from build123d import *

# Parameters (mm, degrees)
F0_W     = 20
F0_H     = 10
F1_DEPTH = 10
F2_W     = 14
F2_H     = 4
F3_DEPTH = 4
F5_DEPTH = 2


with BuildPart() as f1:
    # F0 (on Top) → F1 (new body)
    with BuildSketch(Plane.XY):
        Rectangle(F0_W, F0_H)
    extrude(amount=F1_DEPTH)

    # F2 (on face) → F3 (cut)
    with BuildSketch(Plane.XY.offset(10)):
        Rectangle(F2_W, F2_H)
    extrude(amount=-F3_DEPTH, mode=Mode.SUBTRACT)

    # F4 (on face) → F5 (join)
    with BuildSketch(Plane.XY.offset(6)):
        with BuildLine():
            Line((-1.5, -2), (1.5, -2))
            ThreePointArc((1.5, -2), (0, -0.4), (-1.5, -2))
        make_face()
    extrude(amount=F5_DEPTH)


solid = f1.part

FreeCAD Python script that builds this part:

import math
import FreeCAD as App
import Part
import Sketcher

doc = App.newDocument("Part")
params = doc.addObject("Spreadsheet::Sheet", "Params")
for row, (alias, value) in enumerate([
    ("sketch1_width", "20 mm"),
    ("sketch1_height", "10 mm"),
    ("pad1_length", "10 mm"),
    ("sketch2_width", "14 mm"),
    ("sketch2_height", "4 mm"),
    ("pocket1_length", "4 mm"),
    ("sketch3_width", "3 mm"),
    ("pad2_length", "2 mm"),
], start=1):
    params.set(f"A{row}", alias)
    params.set(f"B{row}", "=" + value)
    params.setAlias(f"B{row}", alias)

body = doc.addObject("PartDesign::Body", "Body")

# Sketch on XY plane
sketch1 = doc.addObject("Sketcher::SketchObject", "Sketch")
body.addObject(sketch1)
sketch1.AttachmentSupport = (doc.XY_Plane, [""])
sketch1.MapMode = "FlatFace"
sketch1.addGeometry(Part.LineSegment(App.Vector(-10, 5, 0), App.Vector(-10, -5, 0)), False)
sketch1.addGeometry(Part.LineSegment(App.Vector(-10, -5, 0), App.Vector(10, -5, 0)), False)
sketch1.addGeometry(Part.LineSegment(App.Vector(10, -5, 0), App.Vector(10, 5, 0)), False)
sketch1.addGeometry(Part.LineSegment(App.Vector(10, 5, 0), App.Vector(-10, 5, 0)), False)
sketch1.addConstraint(Sketcher.Constraint("Coincident", 0, 2, 1, 1))
sketch1.addConstraint(Sketcher.Constraint("Coincident", 1, 2, 2, 1))
sketch1.addConstraint(Sketcher.Constraint("Coincident", 2, 2, 3, 1))
sketch1.addConstraint(Sketcher.Constraint("Coincident", 3, 2, 0, 1))
sketch1.addConstraint(Sketcher.Constraint("Vertical", 0))
sketch1.addConstraint(Sketcher.Constraint("Horizontal", 1))
sketch1.addConstraint(Sketcher.Constraint("Vertical", 2))
sketch1.addConstraint(Sketcher.Constraint("Horizontal", 3))
sketch1.addConstraint(Sketcher.Constraint("Symmetric", 0, 2, 2, 2, -1, 1))
sketch1.addConstraint(Sketcher.Constraint("DistanceX", 1, 1, 1, 2, 20.0))
sketch1.addConstraint(Sketcher.Constraint("DistanceY", 0, 2, 0, 1, 10.0))
sketch1.setExpression("Constraints[9]", "Params.sketch1_width")
sketch1.setExpression("Constraints[10]", "Params.sketch1_height")
pad1 = doc.addObject("PartDesign::Pad", "Pad")
body.addObject(pad1)
pad1.Profile = sketch1
pad1.setExpression("Length", "Params.pad1_length")

# Sketch on XY plane
sketch2 = doc.addObject("Sketcher::SketchObject", "Sketch001")
body.addObject(sketch2)
sketch2.AttachmentSupport = (doc.XY_Plane, [""])
sketch2.MapMode = "FlatFace"
sketch2.AttachmentOffset = App.Placement(App.Vector(0, 0, 10), App.Rotation())
sketch2.addGeometry(Part.LineSegment(App.Vector(-7, 2, 0), App.Vector(-7, -2, 0)), False)
sketch2.addGeometry(Part.LineSegment(App.Vector(-7, -2, 0), App.Vector(7, -2, 0)), False)
sketch2.addGeometry(Part.LineSegment(App.Vector(7, -2, 0), App.Vector(7, 2, 0)), False)
sketch2.addGeometry(Part.LineSegment(App.Vector(7, 2, 0), App.Vector(-7, 2, 0)), False)
sketch2.addConstraint(Sketcher.Constraint("Coincident", 0, 2, 1, 1))
sketch2.addConstraint(Sketcher.Constraint("Coincident", 1, 2, 2, 1))
sketch2.addConstraint(Sketcher.Constraint("Coincident", 2, 2, 3, 1))
sketch2.addConstraint(Sketcher.Constraint("Coincident", 3, 2, 0, 1))
sketch2.addConstraint(Sketcher.Constraint("Vertical", 0))
sketch2.addConstraint(Sketcher.Constraint("Horizontal", 1))
sketch2.addConstraint(Sketcher.Constraint("Vertical", 2))
sketch2.addConstraint(Sketcher.Constraint("Horizontal", 3))
sketch2.addConstraint(Sketcher.Constraint("Symmetric", 0, 2, 2, 2, -1, 1))
sketch2.addConstraint(Sketcher.Constraint("DistanceX", 1, 1, 1, 2, 14.0))
sketch2.addConstraint(Sketcher.Constraint("DistanceY", 0, 2, 0, 1, 4.0))
sketch2.setExpression("Constraints[9]", "Params.sketch2_width")
sketch2.setExpression("Constraints[10]", "Params.sketch2_height")
pocket1 = doc.addObject("PartDesign::Pocket", "Pocket")
body.addObject(pocket1)
pocket1.Profile = sketch2
pocket1.setExpression("Length", "Params.pocket1_length")

# Sketch on XY plane
sketch3 = doc.addObject("Sketcher::SketchObject", "Sketch002")
body.addObject(sketch3)
sketch3.AttachmentSupport = (doc.XY_Plane, [""])
sketch3.MapMode = "FlatFace"
sketch3.AttachmentOffset = App.Placement(App.Vector(0, 0, 6), App.Rotation())
sketch3.addGeometry(Part.LineSegment(App.Vector(-1.5, -2, 0), App.Vector(1.5, -2, 0)), False)
sketch3.addGeometry(Part.ArcOfCircle(Part.Circle(App.Vector(0, -1.9, 0), App.Vector(0, 0, 1), 1.5), math.radians(-4), math.radians(184)), False)
sketch3.addConstraint(Sketcher.Constraint("Coincident", 0, 1, 1, 2))
sketch3.addConstraint(Sketcher.Constraint("Coincident", 1, 1, 0, 2))
sketch3.addConstraint(Sketcher.Constraint("Horizontal", 0))
sketch3.addConstraint(Sketcher.Constraint("PointOnObject", 1, 3, -2))
sketch3.addConstraint(Sketcher.Constraint("DistanceX", 0, 1, 0, 2, 3.0))
sketch3.addConstraint(Sketcher.Constraint("DistanceY", 0, 1, -1, 1, 2.0))
sketch3.addConstraint(Sketcher.Constraint("Radius", 1, 1.503125))
sketch3.setExpression("Constraints[4]", "Params.sketch3_width")
pad2 = doc.addObject("PartDesign::Pad", "Pad001")
body.addObject(pad2)
pad2.Profile = sketch3
pad2.setExpression("Length", "Params.pad2_length")

doc.recompute()
